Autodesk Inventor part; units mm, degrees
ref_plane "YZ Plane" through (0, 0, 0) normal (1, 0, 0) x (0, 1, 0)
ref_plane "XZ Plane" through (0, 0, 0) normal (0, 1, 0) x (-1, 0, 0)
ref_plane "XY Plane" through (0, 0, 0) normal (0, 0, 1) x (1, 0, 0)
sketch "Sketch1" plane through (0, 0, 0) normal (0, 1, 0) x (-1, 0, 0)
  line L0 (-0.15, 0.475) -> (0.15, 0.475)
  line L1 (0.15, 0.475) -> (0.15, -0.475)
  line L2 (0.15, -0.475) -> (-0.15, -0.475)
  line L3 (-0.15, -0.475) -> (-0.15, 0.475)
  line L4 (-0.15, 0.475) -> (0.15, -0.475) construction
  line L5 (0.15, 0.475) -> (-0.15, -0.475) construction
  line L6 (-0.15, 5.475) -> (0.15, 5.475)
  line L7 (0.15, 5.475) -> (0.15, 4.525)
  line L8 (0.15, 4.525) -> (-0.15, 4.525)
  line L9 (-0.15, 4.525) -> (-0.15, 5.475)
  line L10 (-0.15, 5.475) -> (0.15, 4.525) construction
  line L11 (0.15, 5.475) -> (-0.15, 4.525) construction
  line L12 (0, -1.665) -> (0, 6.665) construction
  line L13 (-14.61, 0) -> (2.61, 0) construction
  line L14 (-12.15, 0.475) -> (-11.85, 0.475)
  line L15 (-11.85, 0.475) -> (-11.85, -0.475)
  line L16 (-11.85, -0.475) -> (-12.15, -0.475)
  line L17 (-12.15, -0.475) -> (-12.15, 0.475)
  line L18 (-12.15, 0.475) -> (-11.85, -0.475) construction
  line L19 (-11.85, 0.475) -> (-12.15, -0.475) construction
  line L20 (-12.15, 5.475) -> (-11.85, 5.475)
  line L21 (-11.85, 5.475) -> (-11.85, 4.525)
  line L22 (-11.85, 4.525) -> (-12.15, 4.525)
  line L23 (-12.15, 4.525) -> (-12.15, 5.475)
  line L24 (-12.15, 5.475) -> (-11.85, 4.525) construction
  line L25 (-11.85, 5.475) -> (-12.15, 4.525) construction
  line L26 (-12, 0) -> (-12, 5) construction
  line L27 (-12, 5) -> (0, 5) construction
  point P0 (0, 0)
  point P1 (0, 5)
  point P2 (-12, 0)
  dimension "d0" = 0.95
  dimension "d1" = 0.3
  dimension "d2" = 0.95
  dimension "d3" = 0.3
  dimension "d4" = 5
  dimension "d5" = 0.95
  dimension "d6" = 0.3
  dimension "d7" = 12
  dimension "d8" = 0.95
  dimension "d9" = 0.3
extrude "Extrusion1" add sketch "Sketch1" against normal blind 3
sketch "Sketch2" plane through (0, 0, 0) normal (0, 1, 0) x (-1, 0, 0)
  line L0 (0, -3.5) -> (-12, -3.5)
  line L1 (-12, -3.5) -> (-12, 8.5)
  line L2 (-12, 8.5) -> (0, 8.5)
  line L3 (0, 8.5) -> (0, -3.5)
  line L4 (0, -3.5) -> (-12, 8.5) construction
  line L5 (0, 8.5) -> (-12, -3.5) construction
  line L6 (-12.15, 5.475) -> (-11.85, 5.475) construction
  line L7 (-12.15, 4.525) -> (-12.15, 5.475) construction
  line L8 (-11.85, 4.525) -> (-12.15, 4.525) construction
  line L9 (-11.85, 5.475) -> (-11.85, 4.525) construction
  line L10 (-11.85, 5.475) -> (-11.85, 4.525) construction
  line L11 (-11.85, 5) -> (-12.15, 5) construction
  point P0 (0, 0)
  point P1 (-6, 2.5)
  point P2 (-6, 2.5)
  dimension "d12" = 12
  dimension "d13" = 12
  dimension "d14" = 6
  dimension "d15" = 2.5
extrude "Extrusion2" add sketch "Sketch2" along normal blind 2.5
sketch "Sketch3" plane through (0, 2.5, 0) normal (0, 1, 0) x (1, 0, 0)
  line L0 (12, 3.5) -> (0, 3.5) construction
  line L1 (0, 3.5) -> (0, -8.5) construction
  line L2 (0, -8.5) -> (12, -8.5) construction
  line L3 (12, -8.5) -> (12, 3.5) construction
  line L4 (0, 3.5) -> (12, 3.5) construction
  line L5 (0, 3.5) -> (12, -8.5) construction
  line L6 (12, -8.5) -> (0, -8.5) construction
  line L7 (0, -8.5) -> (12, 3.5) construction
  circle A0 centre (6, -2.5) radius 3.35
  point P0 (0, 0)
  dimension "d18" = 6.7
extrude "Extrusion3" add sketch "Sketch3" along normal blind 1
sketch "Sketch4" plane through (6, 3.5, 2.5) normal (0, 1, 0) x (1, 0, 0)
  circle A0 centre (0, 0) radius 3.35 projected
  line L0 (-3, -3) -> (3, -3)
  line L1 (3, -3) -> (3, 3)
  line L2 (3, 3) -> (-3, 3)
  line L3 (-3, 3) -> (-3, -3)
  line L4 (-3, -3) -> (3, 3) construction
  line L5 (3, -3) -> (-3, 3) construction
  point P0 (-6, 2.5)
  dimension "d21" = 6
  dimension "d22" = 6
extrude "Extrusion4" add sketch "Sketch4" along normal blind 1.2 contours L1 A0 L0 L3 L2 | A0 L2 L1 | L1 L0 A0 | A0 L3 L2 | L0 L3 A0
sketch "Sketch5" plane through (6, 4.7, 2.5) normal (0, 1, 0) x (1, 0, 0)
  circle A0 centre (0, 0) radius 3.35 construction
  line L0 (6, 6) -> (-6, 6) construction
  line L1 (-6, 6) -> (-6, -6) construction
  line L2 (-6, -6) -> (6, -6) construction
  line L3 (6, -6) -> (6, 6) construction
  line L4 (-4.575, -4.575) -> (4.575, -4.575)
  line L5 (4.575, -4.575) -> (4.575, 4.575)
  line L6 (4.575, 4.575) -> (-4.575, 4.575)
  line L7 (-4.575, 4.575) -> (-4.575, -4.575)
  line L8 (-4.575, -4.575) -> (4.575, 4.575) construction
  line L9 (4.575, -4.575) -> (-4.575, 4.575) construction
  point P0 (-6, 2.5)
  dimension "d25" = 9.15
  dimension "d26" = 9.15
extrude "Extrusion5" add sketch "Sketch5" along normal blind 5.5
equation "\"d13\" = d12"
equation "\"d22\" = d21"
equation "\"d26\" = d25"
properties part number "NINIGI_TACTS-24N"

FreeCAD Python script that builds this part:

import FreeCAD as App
import Part
import Sketcher

V = App.Vector

doc = App.newDocument("Part")
params = doc.addObject("Spreadsheet::Sheet", "Params")
for row, (alias, value) in enumerate([
    ("sketch1_width", "0.3 mm"),
    ("sketch1_height", "0.95 mm"),
    ("pad1_length", "3 mm"),
    ("sketch2_width", "12 mm"),
    ("pad2_length", "2.5 mm"),
    ("sketch3_diameter", "6.7 mm"),
    ("pad3_length", "1 mm"),
    ("sketch4_width", "6 mm"),
    ("pad4_length", "1.2 mm"),
    ("sketch5_width", "9.15 mm"),
    ("pad5_length", "5.5 mm"),
], start=1):
    params.set(f"A{row}", alias)
    params.set(f"B{row}", "=" + value)
    params.setAlias(f"B{row}", alias)

body = doc.addObject("PartDesign::Body", "Body")
body.AllowCompound = True

# Sketch on XZ plane
sketch1 = doc.addObject("Sketcher::SketchObject", "Sketch")
body.addObject(sketch1)
sketch1.AttachmentSupport = (doc.XZ_Plane, [""])
sketch1.MapMode = "FlatFace"
sketch1.addGeometry(Part.LineSegment(V(-0.15, 0.47, 0), V(0.15, 0.47, 0)), False)
sketch1.addGeometry(Part.LineSegment(V(0.15, 0.47, 0), V(0.15, -0.47, 0)), False)
sketch1.addGeometry(Part.LineSegment(V(0.15, -0.47, 0), V(-0.15, -0.47, 0)), False)
sketch1.addGeometry(Part.LineSegment(V(-0.15, -0.47, 0), V(-0.15, 0.47, 0)), False)
sketch1.addGeometry(Part.LineSegment(V(-0.15, 5.47, 0), V(0.15, 5.47, 0)), False)
sketch1.addGeometry(Part.LineSegment(V(0.15, 5.47, 0), V(0.15, 4.53, 0)), False)
sketch1.addGeometry(Part.LineSegment(V(0.15, 4.53, 0), V(-0.15, 4.53, 0)), False)
sketch1.addGeometry(Part.LineSegment(V(-0.15, 4.53, 0), V(-0.15, 5.47, 0)), False)
sketch1.addGeometry(Part.LineSegment(V(11.85, 0.47, 0), V(12.15, 0.47, 0)), False)
sketch1.addGeometry(Part.LineSegment(V(12.15, 0.47, 0), V(12.15, -0.47, 0)), False)
sketch1.addGeometry(Part.LineSegment(V(12.15, -0.47, 0), V(11.85, -0.47, 0)), False)
sketch1.addGeometry(Part.LineSegment(V(11.85, -0.47, 0), V(11.85, 0.47, 0)), False)
sketch1.addGeometry(Part.LineSegment(V(11.85, 5.47, 0), V(12.15, 5.47, 0)), False)
sketch1.addGeometry(Part.LineSegment(V(12.15, 5.47, 0), V(12.15, 4.53, 0)), False)
sketch1.addGeometry(Part.LineSegment(V(12.15, 4.53, 0), V(11.85, 4.53, 0)), False)
sketch1.addGeometry(Part.LineSegment(V(11.85, 4.53, 0), V(11.85, 5.47, 0)), False)
sketch1.addConstraint(Sketcher.Constraint("Coincident", 0, 2, 1, 1))
sketch1.addConstraint(Sketcher.Constraint("Coincident", 1, 2, 2, 1))
sketch1.addConstraint(Sketcher.Constraint("Coincident", 2, 2, 3, 1))
sketch1.addConstraint(Sketcher.Constraint("Coincident", 3, 2, 0, 1))
sketch1.addConstraint(Sketcher.Constraint("Coincident", 4, 2, 5, 1))
sketch1.addConstraint(Sketcher.Constraint("Coincident", 5, 2, 6, 1))
sketch1.addConstraint(Sketcher.Constraint("Coincident", 6, 2, 7, 1))
sketch1.addConstraint(Sketcher.Constraint("Coincident", 7, 2, 4, 1))
sketch1.addConstraint(Sketcher.Constraint("Coincident", 8, 2, 9, 1))
sketch1.addConstraint(Sketcher.Constraint("Coincident", 9, 2, 10, 1))
sketch1.addConstraint(Sketcher.Constraint("Coincident", 10, 2, 11, 1))
sketch1.addConstraint(Sketcher.Constraint("Coincident", 11, 2, 8, 1))
sketch1.addConstraint(Sketcher.Constraint("Coincident", 12, 2, 13, 1))
sketch1.addConstraint(Sketcher.Constraint("Coincident", 13, 2, 14, 1))
sketch1.addConstraint(Sketcher.Constraint("Coincident", 14, 2, 15, 1))
sketch1.addConstraint(Sketcher.Constraint("Coincident", 15, 2, 12, 1))
sketch1.addConstraint(Sketcher.Constraint("Horizontal", 0))
sketch1.addConstraint(Sketcher.Constraint("Vertical", 1))
sketch1.addConstraint(Sketcher.Constraint("Horizontal", 2))
sketch1.addConstraint(Sketcher.Constraint("Vertical", 3))
sketch1.addConstraint(Sketcher.Constraint("Horizontal", 4))
sketch1.addConstraint(Sketcher.Constraint("Vertical", 5))
sketch1.addConstraint(Sketcher.Constraint("Horizontal", 6))
sketch1.addConstraint(Sketcher.Constraint("Vertical", 7))
sketch1.addConstraint(Sketcher.Constraint("Horizontal", 8))
sketch1.addConstraint(Sketcher.Constraint("Vertical", 9))
sketch1.addConstraint(Sketcher.Constraint("Horizontal", 10))
sketch1.addConstraint(Sketcher.Constraint("Vertical", 11))
sketch1.addConstraint(Sketcher.Constraint("Horizontal", 12))
sketch1.addConstraint(Sketcher.Constraint("Vertical", 13))
sketch1.addConstraint(Sketcher.Constraint("Horizontal", 14))
sketch1.addConstraint(Sketcher.Constraint("Vertical", 15))
sketch1.addConstraint(Sketcher.Constraint("Symmetric", 0, 2, 2, 2, -1, 1))
sketch1.addConstraint(Sketcher.Constraint("Horizontal", 3, 2, 8, 2))
sketch1.addConstraint(Sketcher.Constraint("Horizontal", 2, 2, 9, 2))
sketch1.addConstraint(Sketcher.Constraint("Horizontal", 7, 2, 12, 2))
sketch1.addConstraint(Sketcher.Constraint("Horizontal", 6, 2, 13, 2))
sketch1.addConstraint(Sketcher.Constraint("Vertical", 1, 2, 4, 2))
sketch1.addConstraint(Sketcher.Constraint("Vertical", 3, 2, 6, 2))
sketch1.addConstraint(Sketcher.Constraint("Vertical", 9, 2, 12, 2))
sketch1.addConstraint(Sketcher.Constraint("Vertical", 11, 2, 14, 2))
sketch1.addConstraint(Sketcher.Constraint("Equal", 6, 8))
sketch1.addConstraint(Sketcher.Constraint("Equal", 3, 5))
sketch1.addConstraint(Sketcher.Constraint("DistanceX", 0, 1, 0, 2, 0.3))
sketch1.addConstraint(Sketcher.Constraint("DistanceY", 0, 2, 4, 2, 5.0))
sketch1.addConstraint(Sketcher.Constraint("DistanceX", 0, 2, 8, 2, 12.0))
sketch1.addConstraint(Sketcher.Constraint("DistanceY", 1, 2, 1, 1, 0.95))
sketch1.setExpression("Constraints[43]", "Params.sketch1_width")
sketch1.setExpression("Constraints[46]", "Params.sketch1_height")
pad1 = doc.addObject("PartDesign::Pad", "Pad")
body.addObject(pad1)
pad1.Profile = sketch1
pad1.setExpression("Length", "Params.pad1_length")

# Sketch on XZ plane
sketch2 = doc.addObject("Sketcher::SketchObject", "Sketch001")
body.addObject(sketch2)
sketch2.AttachmentSupport = (doc.XZ_Plane, [""])
sketch2.MapMode = "FlatFace"
sketch2.addGeometry(Part.LineSegment(V(12, -4, 0), V(0, -4, 0)), False)
sketch2.addGeometry(Part.LineSegment(V(0, -4, 0), V(0, 8, 0)), False)
sketch2.addGeometry(Part.LineSegment(V(0, 8, 0), V(12, 8, 0)), False)
sketch2.addGeometry(Part.LineSegment(V(12, 8, 0), V(12, -4, 0)), False)
sketch2.addConstraint(Sketcher.Constraint("Coincident", 0, 2, 1, 1))
sketch2.addConstraint(Sketcher.Constraint("Coincident", 1, 2, 2, 1))
sketch2.addConstraint(Sketcher.Constraint("Coincident", 2, 2, 3, 1))
sketch2.addConstraint(Sketcher.Constraint("Coincident", 3, 2, 0, 1))
sketch2.addConstraint(Sketcher.Constraint("Horizontal", 0))
sketch2.addConstraint(Sketcher.Constraint("Vertical", 1))
sketch2.addConstraint(Sketcher.Constraint("Horizontal", 2))
sketch2.addConstraint(Sketcher.Constraint("Vertical", 3))
sketch2.addConstraint(Sketcher.Constraint("PointOnObject", 0, 2, -2))
sketch2.addConstraint(Sketcher.Constraint("Equal", 2, 1))
sketch2.addConstraint(Sketcher.Constraint("DistanceX", 0, 2, 0, 1, 12.0))
sketch2.addConstraint(Sketcher.Constraint("DistanceY", 0, 2, -1, 1, 3.5))
sketch2.setExpression("Constraints[10]", "Params.sketch2_width")
pad2 = doc.addObject("PartDesign::Pad", "Pad001")
body.addObject(pad2)
pad2.Profile = sketch2
pad2.setExpression("Length", "Params.pad2_length")
pad2.Reversed = True

# Sketch on XZ plane
sketch3 = doc.addObject("Sketcher::SketchObject", "Sketch002")
body.addObject(sketch3)
sketch3.AttachmentSupport = (doc.XZ_Plane, [""])
sketch3.MapMode = "FlatFace"
sketch3.AttachmentOffset = App.Placement(V(0, 0, -2.5), App.Rotation())
sketch3.addGeometry(Part.Circle(V(6, 2.5, 0), V(0, 0, 1), 3.4), False)
sketch3.addConstraint(Sketcher.Constraint("Diameter", 0, 6.7))
sketch3.addConstraint(Sketcher.Constraint("DistanceX", -1, 1, 0, 3, 6.0))
sketch3.addConstraint(Sketcher.Constraint("DistanceY", -1, 1, 0, 3, 2.5))
sketch3.setExpression("Constraints[0]", "Params.sketch3_diameter")
pad3 = doc.addObject("PartDesign::Pad", "Pad002")
body.addObject(pad3)
pad3.Profile = sketch3
pad3.setExpression("Length", "Params.pad3_length")
pad3.Reversed = True

# Sketch on XZ plane
sketch4 = doc.addObject("Sketcher::SketchObject", "Sketch003")
body.addObject(sketch4)
sketch4.AttachmentSupport = (doc.XZ_Plane, [""])
sketch4.MapMode = "FlatFace"
sketch4.AttachmentOffset = App.Placement(V(0, 0, -3.5), App.Rotation())
sketch4.addGeometry(Part.LineSegment(V(9, 0, 0), V(3, 0, 0)), False)
sketch4.addGeometry(Part.LineSegment(V(3, 0, 0), V(3, 6, 0)), False)
sketch4.addGeometry(Part.LineSegment(V(3, 6, 0), V(9, 6, 0)), False)
sketch4.addGeometry(Part.LineSegment(V(9, 6, 0), V(9, 0, 0)), False)
sketch4.addConstraint(Sketcher.Constraint("Coincident", 0, 2, 1, 1))
sketch4.addConstraint(Sketcher.Constraint("Coincident", 1, 2, 2, 1))
sketch4.addConstraint(Sketcher.Constraint("Coincident", 2, 2, 3, 1))
sketch4.addConstraint(Sketcher.Constraint("Coincident", 3, 2, 0, 1))
sketch4.addConstraint(Sketcher.Constraint("Horizontal", 0))
sketch4.addConstraint(Sketcher.Constraint("Vertical", 1))
sketch4.addConstraint(Sketcher.Constraint("Horizontal", 2))
sketch4.addConstraint(Sketcher.Constraint("Vertical", 3))
sketch4.addConstraint(Sketcher.Constraint("Equal", 2, 1))
sketch4.addConstraint(Sketcher.Constraint("DistanceX", 0, 2, 0, 1, 6.0))
sketch4.addConstraint(Sketcher.Constraint("DistanceX", -1, 1, 0, 2, 3.0))
sketch4.addConstraint(Sketcher.Constraint("DistanceY", 0, 2, -1, 1, 0.5))
sketch4.setExpression("Constraints[9]", "Params.sketch4_width")
pad4 = doc.addObject("PartDesign::Pad", "Pad003")
body.addObject(pad4)
pad4.Profile = sketch4
pad4.setExpression("Length", "Params.pad4_length")
pad4.Reversed = True

# Sketch on XZ plane
sketch5 = doc.addObject("Sketcher::SketchObject", "Sketch004")
body.addObject(sketch5)
sketch5.AttachmentSupport = (doc.XZ_Plane, [""])
sketch5.MapMode = "FlatFace"
sketch5.AttachmentOffset = App.Placement(V(0, 0, -4.7), App.Rotation())
sketch5.addGeometry(Part.LineSegment(V(1, -2, 0), V(1, 7, 0)), False)
sketch5.addGeometry(Part.LineSegment(V(1, 7, 0), V(11, 7, 0)), False)
sketch5.addGeometry(Part.LineSegment(V(11, 7, 0), V(11, -2, 0)), False)
sketch5.addGeometry(Part.LineSegment(V(11, -2, 0), V(1, -2, 0)), False)
sketch5.addConstraint(Sketcher.Constraint("Coincident", 0, 2, 1, 1))
sketch5.addConstraint(Sketcher.Constraint("Coincident", 1, 2, 2, 1))
sketch5.addConstraint(Sketcher.Constraint("Coincident", 2, 2, 3, 1))
sketch5.addConstraint(Sketcher.Constraint("Coincident", 3, 2, 0, 1))
sketch5.addConstraint(Sketcher.Constraint("Vertical", 0))
sketch5.addConstraint(Sketcher.Constraint("Horizontal", 1))
sketch5.addConstraint(Sketcher.Constraint("Vertical", 2))
sketch5.addConstraint(Sketcher.Constraint("Horizontal", 3))
sketch5.addConstraint(Sketcher.Constraint("Equal", 3, 0))
sketch5.addConstraint(Sketcher.Constraint("DistanceX", 1, 1, 1, 2, 9.15))
sketch5.addConstraint(Sketcher.Constraint("DistanceX", -1, 1, 0, 2, 1.425))
sketch5.addConstraint(Sketcher.Constraint("DistanceY", -1, 1, 0, 2, 7.075))
sketch5.setExpression("Constraints[9]", "Params.sketch5_width")
pad5 = doc.addObject("PartDesign::Pad", "Pad004")
body.addObject(pad5)
pad5.Profile = sketch5
pad5.setExpression("Length", "Params.pad5_length")
pad5.Reversed = True

doc.recompute()
